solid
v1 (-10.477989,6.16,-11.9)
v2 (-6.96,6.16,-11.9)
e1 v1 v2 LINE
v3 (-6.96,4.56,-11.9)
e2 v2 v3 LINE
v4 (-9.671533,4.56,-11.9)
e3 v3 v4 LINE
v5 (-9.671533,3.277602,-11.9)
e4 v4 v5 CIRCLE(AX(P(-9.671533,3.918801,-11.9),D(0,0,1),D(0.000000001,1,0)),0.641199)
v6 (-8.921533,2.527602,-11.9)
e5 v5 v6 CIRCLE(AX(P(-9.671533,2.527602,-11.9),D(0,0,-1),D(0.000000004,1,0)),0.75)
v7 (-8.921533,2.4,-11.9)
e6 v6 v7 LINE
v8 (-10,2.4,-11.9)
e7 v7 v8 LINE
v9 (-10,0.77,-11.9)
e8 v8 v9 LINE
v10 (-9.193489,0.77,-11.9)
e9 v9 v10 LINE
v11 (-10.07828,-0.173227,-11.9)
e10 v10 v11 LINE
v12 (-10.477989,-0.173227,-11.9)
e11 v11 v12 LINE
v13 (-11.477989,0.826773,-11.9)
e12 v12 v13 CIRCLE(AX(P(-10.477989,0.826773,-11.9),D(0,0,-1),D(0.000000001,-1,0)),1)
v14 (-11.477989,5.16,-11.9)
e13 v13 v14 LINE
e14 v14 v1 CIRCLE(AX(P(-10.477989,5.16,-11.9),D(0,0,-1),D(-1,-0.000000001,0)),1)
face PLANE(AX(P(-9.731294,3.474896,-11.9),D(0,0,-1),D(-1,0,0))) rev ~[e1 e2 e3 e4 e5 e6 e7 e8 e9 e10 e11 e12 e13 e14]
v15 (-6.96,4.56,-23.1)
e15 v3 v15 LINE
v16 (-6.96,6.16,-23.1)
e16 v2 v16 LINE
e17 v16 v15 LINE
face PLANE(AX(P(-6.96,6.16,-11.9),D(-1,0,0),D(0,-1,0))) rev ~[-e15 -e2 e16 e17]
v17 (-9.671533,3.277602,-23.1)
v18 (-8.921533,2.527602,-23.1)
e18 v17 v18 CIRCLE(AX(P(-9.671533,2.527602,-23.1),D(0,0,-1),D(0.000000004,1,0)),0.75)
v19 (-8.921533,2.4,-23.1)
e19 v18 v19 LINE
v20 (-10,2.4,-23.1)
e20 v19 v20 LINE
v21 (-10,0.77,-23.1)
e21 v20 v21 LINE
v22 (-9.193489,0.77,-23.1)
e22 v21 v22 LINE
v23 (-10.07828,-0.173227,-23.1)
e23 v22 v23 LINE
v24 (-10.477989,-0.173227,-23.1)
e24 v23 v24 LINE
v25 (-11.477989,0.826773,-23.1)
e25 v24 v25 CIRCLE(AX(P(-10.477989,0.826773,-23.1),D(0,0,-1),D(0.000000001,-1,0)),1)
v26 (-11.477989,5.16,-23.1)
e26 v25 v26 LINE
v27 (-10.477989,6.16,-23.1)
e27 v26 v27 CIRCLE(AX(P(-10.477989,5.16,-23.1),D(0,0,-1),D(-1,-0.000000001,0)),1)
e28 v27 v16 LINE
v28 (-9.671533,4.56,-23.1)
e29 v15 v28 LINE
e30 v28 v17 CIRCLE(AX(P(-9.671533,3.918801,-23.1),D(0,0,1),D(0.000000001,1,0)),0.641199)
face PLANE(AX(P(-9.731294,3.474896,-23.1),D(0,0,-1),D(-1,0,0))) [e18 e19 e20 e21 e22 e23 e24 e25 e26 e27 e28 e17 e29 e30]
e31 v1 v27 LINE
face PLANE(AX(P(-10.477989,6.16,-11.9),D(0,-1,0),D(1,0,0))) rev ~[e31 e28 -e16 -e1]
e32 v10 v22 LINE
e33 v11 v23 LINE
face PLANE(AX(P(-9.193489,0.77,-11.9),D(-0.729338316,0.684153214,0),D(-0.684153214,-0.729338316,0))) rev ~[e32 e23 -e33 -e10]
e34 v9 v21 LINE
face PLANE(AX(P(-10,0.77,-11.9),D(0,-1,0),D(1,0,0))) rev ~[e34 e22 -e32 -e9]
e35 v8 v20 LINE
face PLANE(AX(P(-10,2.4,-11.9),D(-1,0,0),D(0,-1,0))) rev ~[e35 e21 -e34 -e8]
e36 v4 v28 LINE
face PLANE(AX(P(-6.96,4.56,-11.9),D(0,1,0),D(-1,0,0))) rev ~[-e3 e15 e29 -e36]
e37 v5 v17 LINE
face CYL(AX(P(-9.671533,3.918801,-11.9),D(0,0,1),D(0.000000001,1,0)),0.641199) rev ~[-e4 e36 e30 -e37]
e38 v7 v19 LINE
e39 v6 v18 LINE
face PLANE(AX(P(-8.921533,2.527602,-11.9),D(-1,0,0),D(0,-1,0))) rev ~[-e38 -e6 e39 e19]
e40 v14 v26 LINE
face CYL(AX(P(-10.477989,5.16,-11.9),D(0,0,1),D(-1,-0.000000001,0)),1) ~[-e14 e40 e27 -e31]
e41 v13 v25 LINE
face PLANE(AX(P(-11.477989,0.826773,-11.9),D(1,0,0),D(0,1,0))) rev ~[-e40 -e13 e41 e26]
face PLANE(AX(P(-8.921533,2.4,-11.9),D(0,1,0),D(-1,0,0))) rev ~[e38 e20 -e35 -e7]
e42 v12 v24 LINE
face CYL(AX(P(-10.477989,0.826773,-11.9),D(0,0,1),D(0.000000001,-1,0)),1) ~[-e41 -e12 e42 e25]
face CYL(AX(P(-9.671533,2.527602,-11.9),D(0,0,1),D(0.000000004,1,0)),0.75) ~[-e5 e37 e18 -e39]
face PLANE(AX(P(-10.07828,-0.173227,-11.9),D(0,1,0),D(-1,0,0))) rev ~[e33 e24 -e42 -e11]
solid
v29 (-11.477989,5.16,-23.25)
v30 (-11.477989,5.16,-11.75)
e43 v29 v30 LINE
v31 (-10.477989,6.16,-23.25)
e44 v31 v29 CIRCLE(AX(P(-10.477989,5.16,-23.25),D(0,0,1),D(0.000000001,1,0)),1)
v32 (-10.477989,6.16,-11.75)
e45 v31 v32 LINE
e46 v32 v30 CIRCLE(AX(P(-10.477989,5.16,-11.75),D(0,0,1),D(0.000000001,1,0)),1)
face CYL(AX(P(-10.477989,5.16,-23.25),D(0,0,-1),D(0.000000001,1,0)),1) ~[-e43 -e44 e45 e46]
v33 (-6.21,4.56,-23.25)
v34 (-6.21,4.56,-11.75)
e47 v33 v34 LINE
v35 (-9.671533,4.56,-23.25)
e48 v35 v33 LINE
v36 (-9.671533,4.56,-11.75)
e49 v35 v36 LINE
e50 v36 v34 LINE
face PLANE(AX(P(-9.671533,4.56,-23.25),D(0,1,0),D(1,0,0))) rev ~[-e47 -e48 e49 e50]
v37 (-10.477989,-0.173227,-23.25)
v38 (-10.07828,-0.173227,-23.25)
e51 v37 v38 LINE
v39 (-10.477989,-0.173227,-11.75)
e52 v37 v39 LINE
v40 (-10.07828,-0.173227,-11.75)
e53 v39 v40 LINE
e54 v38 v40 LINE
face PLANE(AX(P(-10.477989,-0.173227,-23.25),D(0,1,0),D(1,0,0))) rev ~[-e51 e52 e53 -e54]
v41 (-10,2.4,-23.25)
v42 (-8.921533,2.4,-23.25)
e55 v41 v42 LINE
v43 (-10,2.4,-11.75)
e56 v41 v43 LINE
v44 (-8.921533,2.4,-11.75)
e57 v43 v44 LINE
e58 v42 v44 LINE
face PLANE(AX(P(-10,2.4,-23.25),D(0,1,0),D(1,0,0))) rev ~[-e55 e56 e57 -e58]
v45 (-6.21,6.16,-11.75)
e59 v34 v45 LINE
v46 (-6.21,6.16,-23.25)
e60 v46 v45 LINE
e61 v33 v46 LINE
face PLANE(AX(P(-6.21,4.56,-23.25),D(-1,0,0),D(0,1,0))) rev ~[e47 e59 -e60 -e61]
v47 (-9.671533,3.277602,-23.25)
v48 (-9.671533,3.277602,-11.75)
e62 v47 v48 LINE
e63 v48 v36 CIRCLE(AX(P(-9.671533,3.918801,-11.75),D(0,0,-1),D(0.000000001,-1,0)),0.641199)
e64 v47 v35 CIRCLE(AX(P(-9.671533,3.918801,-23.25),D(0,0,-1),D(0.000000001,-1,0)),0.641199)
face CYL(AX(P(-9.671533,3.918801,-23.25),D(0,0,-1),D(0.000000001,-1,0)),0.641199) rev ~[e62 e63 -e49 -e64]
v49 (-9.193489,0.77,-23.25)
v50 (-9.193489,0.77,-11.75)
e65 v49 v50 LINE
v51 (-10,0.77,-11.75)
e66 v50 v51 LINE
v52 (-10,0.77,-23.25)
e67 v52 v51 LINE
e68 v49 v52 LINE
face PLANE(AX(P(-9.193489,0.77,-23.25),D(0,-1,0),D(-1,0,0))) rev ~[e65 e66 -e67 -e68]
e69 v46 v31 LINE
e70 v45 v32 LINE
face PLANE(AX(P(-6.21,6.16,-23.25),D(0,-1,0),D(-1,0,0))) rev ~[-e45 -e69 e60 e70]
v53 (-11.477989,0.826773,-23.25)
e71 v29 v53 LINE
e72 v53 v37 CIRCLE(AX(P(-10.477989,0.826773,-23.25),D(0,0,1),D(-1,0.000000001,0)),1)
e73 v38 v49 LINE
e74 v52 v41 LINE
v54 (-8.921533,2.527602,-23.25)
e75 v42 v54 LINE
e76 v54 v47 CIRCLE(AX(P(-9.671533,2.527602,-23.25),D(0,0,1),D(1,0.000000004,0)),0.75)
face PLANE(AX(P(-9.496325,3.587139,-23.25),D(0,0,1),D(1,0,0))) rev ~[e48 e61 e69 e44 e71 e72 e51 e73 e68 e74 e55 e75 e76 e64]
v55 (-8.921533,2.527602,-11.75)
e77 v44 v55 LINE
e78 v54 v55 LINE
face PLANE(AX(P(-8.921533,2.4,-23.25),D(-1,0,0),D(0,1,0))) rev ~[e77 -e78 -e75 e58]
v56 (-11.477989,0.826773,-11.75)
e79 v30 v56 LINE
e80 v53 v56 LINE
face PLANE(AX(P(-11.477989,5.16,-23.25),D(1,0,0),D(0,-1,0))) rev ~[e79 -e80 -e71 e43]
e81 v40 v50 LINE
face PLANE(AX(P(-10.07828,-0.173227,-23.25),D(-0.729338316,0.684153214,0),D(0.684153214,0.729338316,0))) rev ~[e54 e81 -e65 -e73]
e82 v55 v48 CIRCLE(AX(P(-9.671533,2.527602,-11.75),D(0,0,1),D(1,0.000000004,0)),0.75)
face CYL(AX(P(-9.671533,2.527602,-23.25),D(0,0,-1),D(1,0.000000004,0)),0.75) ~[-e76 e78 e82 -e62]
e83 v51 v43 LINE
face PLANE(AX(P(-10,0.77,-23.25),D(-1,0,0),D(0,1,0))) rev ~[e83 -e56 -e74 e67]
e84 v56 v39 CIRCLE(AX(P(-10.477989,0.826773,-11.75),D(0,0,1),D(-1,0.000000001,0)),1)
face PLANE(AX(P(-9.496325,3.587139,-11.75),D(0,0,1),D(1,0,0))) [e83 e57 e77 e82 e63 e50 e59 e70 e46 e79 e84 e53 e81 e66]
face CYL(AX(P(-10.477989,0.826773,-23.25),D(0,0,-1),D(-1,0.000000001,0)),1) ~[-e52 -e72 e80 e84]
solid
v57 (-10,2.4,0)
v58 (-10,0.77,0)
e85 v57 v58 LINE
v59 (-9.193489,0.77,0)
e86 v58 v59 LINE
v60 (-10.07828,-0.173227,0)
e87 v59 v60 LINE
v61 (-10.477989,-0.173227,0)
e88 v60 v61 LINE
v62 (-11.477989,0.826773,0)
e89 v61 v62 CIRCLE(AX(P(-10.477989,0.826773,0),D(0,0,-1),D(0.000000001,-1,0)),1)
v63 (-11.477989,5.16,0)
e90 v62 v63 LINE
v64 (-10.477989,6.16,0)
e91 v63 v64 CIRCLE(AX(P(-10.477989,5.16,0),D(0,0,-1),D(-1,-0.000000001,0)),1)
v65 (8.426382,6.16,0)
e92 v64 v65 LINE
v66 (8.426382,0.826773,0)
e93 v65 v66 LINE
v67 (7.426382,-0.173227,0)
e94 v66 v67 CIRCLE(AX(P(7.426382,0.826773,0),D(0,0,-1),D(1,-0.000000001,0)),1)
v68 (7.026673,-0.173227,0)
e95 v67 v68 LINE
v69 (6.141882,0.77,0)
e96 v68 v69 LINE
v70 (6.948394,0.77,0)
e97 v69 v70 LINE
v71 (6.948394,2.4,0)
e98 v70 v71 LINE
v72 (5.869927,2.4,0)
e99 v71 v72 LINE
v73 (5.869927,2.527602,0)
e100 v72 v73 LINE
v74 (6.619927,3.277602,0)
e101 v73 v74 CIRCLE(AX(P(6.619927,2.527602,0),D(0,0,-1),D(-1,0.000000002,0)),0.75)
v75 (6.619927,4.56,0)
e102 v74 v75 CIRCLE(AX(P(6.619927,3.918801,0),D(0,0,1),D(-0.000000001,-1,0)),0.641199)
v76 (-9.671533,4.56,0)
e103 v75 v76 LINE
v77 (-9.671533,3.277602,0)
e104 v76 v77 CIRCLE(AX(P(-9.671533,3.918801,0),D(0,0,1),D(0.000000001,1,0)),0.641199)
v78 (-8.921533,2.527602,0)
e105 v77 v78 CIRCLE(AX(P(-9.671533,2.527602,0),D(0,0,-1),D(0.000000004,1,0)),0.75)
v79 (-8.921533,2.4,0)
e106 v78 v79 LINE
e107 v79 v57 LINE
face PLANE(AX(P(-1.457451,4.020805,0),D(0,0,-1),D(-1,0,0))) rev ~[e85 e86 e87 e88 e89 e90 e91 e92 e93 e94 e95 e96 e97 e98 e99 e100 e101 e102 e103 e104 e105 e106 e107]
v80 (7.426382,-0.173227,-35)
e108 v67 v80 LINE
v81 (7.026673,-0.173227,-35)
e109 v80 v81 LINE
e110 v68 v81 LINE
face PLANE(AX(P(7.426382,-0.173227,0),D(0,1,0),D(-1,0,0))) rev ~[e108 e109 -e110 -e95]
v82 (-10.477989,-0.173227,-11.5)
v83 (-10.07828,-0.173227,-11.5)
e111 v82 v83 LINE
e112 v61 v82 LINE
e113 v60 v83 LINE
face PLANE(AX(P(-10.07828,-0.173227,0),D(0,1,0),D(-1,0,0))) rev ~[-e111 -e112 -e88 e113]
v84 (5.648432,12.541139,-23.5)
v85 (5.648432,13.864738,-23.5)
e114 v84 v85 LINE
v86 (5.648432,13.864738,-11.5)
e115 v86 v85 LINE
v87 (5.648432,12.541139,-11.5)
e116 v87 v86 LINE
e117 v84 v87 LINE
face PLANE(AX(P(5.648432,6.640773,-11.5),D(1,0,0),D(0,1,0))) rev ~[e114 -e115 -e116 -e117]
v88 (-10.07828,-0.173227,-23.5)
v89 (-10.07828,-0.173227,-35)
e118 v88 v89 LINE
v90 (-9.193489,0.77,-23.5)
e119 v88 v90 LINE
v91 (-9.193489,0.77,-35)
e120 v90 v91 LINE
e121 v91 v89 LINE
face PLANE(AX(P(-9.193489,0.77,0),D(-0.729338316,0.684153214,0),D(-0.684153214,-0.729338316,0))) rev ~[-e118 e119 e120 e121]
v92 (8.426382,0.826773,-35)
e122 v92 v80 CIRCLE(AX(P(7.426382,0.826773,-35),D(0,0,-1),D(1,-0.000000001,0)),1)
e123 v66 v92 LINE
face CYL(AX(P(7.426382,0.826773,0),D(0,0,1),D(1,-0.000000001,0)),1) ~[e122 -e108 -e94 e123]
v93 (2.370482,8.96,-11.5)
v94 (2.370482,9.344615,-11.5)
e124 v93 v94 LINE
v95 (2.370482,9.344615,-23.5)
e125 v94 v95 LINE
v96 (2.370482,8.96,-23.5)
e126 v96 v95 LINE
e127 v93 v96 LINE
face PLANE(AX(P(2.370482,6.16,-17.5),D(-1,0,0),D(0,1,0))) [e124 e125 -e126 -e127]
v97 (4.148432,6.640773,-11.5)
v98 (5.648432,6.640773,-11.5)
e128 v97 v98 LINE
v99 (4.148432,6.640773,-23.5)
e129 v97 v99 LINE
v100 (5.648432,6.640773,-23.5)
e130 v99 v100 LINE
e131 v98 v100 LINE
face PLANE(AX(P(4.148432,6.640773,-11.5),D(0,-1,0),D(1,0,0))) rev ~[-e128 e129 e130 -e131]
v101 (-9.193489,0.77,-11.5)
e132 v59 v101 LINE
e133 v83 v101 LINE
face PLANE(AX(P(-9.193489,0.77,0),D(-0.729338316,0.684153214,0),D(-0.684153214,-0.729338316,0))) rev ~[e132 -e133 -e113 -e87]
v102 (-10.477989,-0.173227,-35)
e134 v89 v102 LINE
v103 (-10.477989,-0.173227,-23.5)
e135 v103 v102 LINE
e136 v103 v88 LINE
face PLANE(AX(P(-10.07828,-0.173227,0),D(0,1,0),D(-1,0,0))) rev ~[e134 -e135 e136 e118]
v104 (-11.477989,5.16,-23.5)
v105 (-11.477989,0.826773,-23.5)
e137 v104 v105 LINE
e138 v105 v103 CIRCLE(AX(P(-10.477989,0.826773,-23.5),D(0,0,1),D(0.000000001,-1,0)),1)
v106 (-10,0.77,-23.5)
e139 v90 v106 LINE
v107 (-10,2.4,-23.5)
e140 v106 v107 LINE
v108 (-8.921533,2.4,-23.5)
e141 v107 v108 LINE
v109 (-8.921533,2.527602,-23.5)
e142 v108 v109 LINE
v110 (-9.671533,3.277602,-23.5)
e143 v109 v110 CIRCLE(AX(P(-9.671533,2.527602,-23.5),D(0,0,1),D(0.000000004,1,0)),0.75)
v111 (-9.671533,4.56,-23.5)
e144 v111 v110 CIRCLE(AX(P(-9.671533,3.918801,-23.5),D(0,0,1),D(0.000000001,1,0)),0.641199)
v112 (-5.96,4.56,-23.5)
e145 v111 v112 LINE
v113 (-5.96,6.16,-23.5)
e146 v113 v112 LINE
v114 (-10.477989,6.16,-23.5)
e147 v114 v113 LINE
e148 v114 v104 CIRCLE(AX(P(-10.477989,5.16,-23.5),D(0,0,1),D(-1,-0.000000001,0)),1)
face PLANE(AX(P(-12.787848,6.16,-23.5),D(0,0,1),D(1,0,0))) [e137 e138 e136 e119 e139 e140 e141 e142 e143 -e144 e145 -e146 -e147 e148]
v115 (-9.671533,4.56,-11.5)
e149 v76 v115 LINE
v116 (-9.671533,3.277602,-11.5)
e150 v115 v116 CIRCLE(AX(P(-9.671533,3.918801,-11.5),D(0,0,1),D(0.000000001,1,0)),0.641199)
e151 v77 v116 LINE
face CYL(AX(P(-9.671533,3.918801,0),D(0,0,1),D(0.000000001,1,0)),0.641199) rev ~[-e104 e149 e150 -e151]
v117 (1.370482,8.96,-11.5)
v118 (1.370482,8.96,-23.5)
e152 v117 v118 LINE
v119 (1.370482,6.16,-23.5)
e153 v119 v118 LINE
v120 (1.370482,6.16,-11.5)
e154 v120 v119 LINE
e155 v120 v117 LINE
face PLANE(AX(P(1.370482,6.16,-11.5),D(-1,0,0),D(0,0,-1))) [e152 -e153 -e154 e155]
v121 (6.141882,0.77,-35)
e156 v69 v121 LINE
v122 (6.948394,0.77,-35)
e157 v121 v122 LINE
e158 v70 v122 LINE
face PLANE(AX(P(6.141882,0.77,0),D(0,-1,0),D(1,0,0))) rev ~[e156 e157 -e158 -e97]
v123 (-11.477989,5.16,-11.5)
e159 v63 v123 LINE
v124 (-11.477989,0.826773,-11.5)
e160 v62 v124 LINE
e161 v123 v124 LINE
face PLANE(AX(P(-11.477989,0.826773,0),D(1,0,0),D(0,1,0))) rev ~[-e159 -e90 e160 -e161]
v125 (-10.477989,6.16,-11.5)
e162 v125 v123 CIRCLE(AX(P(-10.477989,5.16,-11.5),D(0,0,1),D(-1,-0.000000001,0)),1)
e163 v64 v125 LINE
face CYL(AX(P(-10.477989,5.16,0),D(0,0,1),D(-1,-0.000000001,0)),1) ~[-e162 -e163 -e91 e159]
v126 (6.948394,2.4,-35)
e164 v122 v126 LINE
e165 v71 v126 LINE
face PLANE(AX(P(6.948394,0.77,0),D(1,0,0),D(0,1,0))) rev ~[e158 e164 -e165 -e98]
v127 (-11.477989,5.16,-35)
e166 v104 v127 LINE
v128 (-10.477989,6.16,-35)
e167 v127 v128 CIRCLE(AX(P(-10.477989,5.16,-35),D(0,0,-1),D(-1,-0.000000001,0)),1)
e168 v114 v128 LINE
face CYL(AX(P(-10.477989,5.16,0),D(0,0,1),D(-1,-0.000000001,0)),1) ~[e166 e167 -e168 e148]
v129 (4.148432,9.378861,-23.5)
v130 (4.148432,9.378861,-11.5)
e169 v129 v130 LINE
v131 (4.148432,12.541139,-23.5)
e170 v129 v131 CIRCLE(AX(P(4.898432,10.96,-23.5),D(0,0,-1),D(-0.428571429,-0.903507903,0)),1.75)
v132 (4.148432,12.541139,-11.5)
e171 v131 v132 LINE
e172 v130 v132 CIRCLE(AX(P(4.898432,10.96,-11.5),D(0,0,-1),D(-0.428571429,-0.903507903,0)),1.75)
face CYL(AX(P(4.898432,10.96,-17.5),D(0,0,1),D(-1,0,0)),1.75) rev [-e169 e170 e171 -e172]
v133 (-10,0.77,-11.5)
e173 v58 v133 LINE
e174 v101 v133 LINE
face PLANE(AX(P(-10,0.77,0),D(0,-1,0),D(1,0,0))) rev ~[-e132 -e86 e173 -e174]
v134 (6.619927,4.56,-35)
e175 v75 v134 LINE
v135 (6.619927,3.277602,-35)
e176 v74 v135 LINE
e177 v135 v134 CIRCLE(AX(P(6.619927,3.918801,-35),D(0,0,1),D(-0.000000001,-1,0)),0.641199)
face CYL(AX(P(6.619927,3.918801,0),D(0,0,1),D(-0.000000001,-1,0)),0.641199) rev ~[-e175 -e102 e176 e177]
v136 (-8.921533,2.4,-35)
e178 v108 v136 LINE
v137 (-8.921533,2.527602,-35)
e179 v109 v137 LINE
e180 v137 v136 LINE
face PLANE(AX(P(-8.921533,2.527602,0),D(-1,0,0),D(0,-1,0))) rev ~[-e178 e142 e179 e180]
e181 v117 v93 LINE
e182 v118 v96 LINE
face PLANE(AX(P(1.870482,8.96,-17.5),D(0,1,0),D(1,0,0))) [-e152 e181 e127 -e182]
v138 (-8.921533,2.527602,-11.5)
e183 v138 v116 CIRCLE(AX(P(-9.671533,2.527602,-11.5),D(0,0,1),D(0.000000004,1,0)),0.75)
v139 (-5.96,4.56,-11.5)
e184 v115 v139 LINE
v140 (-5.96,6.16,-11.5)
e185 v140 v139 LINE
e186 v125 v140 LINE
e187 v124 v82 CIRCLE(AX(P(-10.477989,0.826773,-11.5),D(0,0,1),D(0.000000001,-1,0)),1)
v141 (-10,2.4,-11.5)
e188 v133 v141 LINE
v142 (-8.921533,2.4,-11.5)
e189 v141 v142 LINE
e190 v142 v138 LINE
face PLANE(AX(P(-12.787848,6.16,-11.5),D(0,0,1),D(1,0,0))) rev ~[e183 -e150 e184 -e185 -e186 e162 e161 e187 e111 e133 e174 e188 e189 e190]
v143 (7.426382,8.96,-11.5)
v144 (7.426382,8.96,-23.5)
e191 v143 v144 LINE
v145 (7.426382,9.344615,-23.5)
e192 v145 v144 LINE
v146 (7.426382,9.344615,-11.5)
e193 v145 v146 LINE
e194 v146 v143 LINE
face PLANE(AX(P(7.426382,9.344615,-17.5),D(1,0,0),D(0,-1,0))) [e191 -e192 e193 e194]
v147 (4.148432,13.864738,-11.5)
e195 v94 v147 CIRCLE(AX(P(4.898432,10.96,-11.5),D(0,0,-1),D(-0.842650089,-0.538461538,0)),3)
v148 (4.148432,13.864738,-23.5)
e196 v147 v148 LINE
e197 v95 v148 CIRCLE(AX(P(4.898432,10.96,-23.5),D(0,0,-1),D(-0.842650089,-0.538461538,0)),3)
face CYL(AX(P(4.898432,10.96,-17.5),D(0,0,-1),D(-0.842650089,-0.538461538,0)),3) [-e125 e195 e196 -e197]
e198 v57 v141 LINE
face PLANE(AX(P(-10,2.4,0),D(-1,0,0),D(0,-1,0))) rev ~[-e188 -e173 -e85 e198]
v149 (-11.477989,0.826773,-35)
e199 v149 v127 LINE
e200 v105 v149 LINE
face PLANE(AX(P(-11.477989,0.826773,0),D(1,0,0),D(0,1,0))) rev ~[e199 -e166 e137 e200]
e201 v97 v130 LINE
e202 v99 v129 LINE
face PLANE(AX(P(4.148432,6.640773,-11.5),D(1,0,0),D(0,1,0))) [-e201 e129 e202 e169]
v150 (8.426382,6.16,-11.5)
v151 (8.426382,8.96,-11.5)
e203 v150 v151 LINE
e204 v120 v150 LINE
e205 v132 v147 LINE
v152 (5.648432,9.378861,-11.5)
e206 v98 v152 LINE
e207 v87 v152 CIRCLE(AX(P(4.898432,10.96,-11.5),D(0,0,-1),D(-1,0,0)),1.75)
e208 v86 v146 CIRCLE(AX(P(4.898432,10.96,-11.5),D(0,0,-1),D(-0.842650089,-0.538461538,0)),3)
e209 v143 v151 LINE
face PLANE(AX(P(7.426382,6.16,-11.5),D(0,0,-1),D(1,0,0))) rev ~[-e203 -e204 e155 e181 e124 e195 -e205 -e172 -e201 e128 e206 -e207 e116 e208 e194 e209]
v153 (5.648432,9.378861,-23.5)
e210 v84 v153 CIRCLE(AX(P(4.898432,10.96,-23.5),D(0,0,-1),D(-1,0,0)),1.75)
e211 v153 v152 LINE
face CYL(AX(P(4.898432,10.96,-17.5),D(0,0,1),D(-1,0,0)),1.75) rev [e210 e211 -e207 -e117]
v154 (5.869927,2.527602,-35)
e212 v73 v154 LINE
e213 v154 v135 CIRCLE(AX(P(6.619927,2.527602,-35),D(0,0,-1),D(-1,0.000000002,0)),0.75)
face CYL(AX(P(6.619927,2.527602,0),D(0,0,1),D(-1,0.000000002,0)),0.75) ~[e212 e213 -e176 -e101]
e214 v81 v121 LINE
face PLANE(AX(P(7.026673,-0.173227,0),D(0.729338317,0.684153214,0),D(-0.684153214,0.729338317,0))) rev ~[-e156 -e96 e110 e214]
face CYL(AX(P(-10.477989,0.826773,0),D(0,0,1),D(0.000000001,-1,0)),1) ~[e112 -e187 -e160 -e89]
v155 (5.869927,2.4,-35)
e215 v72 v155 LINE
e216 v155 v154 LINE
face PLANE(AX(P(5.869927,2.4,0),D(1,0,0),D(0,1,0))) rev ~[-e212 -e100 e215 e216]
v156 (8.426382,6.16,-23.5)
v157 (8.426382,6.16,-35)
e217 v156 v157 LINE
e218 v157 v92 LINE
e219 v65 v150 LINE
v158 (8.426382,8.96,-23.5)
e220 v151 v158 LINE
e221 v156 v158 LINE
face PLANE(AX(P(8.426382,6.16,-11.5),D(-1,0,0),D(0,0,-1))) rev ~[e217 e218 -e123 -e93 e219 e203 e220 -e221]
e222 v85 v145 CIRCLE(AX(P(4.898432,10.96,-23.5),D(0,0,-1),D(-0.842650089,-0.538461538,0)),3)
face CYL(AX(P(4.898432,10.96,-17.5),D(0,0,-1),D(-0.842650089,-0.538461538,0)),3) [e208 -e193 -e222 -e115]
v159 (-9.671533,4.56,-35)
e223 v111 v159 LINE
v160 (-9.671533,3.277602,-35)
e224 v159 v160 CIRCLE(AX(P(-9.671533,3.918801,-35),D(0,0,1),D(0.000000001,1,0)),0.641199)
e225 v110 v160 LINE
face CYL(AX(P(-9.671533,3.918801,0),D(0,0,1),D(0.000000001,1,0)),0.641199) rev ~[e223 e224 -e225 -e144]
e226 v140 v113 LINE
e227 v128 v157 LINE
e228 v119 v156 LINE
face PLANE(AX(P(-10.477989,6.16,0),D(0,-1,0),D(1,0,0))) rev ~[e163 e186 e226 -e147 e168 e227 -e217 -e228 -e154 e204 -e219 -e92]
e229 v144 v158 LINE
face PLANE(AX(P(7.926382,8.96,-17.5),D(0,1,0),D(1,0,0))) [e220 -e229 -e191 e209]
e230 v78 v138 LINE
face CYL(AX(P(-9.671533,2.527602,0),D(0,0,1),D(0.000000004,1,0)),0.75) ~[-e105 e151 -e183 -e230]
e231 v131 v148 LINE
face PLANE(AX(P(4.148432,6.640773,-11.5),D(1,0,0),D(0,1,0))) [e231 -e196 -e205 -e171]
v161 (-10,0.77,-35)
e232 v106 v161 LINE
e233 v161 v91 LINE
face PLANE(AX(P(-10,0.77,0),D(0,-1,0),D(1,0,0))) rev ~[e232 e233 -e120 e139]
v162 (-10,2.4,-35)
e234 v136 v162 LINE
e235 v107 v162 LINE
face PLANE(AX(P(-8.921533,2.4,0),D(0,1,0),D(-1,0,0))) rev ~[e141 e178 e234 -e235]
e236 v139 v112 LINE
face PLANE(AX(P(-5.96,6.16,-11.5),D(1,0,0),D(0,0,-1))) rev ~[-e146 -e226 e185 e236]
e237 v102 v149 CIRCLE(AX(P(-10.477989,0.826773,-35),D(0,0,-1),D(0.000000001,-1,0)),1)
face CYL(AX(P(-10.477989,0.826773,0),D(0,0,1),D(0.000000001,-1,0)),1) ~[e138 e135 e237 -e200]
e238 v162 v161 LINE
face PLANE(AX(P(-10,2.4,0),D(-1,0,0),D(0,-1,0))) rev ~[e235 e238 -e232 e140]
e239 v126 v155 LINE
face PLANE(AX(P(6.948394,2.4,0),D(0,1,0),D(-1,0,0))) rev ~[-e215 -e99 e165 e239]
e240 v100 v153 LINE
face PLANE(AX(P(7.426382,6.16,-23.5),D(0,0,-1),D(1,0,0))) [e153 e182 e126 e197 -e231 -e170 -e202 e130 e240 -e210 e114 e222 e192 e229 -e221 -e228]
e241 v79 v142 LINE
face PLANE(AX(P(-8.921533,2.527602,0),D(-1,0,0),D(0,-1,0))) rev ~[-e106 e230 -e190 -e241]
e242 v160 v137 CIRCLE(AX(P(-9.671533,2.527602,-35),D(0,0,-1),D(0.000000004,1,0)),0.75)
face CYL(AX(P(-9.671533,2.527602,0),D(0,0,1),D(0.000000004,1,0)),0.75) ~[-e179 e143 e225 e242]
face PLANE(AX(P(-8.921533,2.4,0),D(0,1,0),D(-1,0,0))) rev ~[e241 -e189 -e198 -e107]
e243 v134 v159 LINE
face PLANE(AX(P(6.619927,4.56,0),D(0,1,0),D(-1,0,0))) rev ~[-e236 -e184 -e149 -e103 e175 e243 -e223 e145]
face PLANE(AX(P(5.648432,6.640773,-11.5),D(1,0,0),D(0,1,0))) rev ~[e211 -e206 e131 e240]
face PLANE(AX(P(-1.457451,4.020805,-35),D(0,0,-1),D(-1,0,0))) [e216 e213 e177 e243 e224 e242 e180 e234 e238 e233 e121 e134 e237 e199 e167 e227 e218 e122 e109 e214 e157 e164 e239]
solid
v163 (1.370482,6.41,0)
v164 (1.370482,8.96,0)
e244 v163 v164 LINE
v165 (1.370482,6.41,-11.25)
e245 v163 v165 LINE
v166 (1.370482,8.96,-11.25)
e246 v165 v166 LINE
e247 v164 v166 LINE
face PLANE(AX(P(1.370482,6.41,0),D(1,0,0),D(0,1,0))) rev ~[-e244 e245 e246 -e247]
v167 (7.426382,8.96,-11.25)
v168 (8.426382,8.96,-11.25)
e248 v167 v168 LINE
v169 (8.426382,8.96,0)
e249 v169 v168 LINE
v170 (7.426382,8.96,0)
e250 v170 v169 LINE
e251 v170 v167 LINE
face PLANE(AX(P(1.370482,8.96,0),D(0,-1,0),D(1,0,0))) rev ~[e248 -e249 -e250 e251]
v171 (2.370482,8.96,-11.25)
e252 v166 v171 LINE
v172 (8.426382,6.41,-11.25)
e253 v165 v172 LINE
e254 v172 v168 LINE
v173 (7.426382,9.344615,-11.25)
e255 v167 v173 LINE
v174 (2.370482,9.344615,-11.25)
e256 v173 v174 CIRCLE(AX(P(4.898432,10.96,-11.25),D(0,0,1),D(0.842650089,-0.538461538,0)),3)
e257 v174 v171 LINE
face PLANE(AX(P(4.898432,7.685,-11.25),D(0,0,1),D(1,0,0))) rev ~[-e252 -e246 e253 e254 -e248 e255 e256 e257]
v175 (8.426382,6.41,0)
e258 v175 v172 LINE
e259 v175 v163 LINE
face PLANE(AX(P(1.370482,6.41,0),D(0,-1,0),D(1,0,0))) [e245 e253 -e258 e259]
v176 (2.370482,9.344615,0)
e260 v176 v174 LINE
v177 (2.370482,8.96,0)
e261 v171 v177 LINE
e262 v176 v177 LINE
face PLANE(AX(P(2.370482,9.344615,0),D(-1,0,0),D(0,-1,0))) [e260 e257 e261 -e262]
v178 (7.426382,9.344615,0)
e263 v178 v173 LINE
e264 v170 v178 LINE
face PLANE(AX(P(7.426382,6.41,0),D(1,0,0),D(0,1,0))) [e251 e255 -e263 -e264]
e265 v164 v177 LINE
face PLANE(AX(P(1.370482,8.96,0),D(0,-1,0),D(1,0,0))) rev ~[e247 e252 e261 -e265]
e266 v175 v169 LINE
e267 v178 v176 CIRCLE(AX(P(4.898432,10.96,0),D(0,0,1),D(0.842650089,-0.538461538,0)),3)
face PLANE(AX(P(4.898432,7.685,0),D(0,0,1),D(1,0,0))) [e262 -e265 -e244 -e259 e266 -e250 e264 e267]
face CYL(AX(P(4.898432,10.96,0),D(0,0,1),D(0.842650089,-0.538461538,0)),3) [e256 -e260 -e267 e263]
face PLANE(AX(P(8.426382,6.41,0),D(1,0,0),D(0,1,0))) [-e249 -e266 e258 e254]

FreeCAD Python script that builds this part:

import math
import FreeCAD as App
import Part
import Sketcher
from FreeCAD import Vector


def add_polygon(sketch, points):
    """Adds a closed chain of lines whose ends are joined by coincident constraints."""
    first, n = sketch.GeometryCount, len(points)
    for a, b in zip(points, points[1:] + points[:1]):
        sketch.addGeometry(Part.LineSegment(App.Vector(*a, 0), App.Vector(*b, 0)), False)
    for i in range(n):
        sketch.addConstraint(Sketcher.Constraint("Coincident", first + i, 2, first + (i + 1) % n, 1))

doc = App.newDocument("Part")
params = doc.addObject("Spreadsheet::Sheet", "Params")
for row, (alias, value) in enumerate([
    ("sketch1_radius", "1 mm"),
    ("sketch1_radius2", "0.75 mm"),
    ("sketch1_height", "1.63 mm"),
    ("pad1_length", "35 mm"),
    ("sketch2_radius", "3 mm"),
    ("sketch2_diameter", "3.5 mm"),
    ("pad2_length", "12 mm"),
    ("sketch3_height", "12 mm"),
    ("sketch4_width", "1 mm"),
    ("sketch4_height", "12 mm"),
    ("pad3_length", "2.8 mm"),
    ("sketch5_width", "1.5 mm"),
    ("pocket2_length", "12 mm"),
    ("sketch6_radius", "3 mm"),
    ("pad4_length", "11.25 mm"),
    ("sketch7_height", "2.55 mm"),
    ("pad5_length", "11.25 mm"),
    ("sketch8_radius", "1 mm"),
    ("sketch8_radius2", "0.75 mm"),
    ("sketch8_height", "1.6 mm"),
    ("sketch8_height2", "1.63 mm"),
    ("pad6_length", "11.2 mm"),
    ("sketch9_radius", "1 mm"),
    ("sketch9_radius2", "0.75 mm"),
    ("sketch9_height", "1.6 mm"),
    ("sketch9_height2", "1.63 mm"),
    ("pad7_length", "11.5 mm"),
], start=1):
    params.set(f"A{row}", alias)
    params.set(f"B{row}", "=" + value)
    params.setAlias(f"B{row}", alias)

body = doc.addObject("PartDesign::Body", "Body")

# Sketch on XY plane
sketch1 = body.newObject("Sketcher::SketchObject", "Sketch")
sketch1.AttachmentSupport = (doc.getObject("XY_Plane"), [""])
sketch1.MapMode = "FlatFace"
sketch1.addGeometry([
    Part.LineSegment(Vector(-9.19, 0.77, 0), Vector(-10, 0.77, 0)),  # 0
    Part.LineSegment(Vector(-10, 0.77, 0), Vector(-10, 2.4, 0)),  # 1
    Part.LineSegment(Vector(-10, 2.4, 0), Vector(-8.92, 2.4, 0)),  # 2
    Part.LineSegment(Vector(-8.92, 2.4, 0), Vector(-8.92, 2.53, 0)),  # 3
    Part.ArcOfCircle(Part.Circle(Vector(-9.67, 2.53, 0), Vector(0, 0, 1), 0.75), math.radians(0), math.radians(90)),  # 4
    Part.ArcOfCircle(Part.Circle(Vector(-9.67, 3.92, 0), Vector(0, 0, 1), 0.64), math.radians(90), math.radians(270)),  # 5
    Part.LineSegment(Vector(-9.67, 4.56, 0), Vector(6.62, 4.56, 0)),  # 6
    Part.ArcOfCircle(Part.Circle(Vector(6.62, 3.92, 0), Vector(0, 0, 1), 0.64), math.radians(-90), math.radians(90)),  # 7
    Part.ArcOfCircle(Part.Circle(Vector(6.62, 2.53, 0), Vector(0, 0, 1), 0.75), math.radians(90), math.radians(180)),  # 8
    Part.LineSegment(Vector(5.87, 2.53, 0), Vector(5.87, 2.4, 0)),  # 9
    Part.LineSegment(Vector(5.87, 2.4, 0), Vector(6.95, 2.4, 0)),  # 10
    Part.LineSegment(Vector(6.95, 2.4, 0), Vector(6.95, 0.77, 0)),  # 11
    Part.LineSegment(Vector(6.95, 0.77, 0), Vector(6.14, 0.77, 0)),  # 12
    Part.LineSegment(Vector(6.14, 0.77, 0), Vector(7.03, -0.17, 0)),  # 13
    Part.LineSegment(Vector(7.03, -0.17, 0), Vector(7.43, -0.17, 0)),  # 14
    Part.ArcOfCircle(Part.Circle(Vector(7.43, 0.83, 0), Vector(0, 0, 1), 1), math.radians(-90), math.radians(0)),  # 15
    Part.LineSegment(Vector(8.43, 0.83, 0), Vector(8.43, 6.16, 0)),  # 16
    Part.LineSegment(Vector(8.43, 6.16, 0), Vector(-10.48, 6.16, 0)),  # 17
    Part.ArcOfCircle(Part.Circle(Vector(-10.48, 5.16, 0), Vector(0, 0, 1), 1), math.radians(90), math.radians(180)),  # 18
    Part.LineSegment(Vector(-11.48, 5.16, 0), Vector(-11.48, 0.83, 0)),  # 19
    Part.ArcOfCircle(Part.Circle(Vector(-10.48, 0.83, 0), Vector(0, 0, 1), 1), math.radians(180), math.radians(270)),  # 20
    Part.LineSegment(Vector(-10.48, -0.17, 0), Vector(-10.08, -0.17, 0)),  # 21
    Part.LineSegment(Vector(-10.08, -0.17, 0), Vector(-9.19, 0.77, 0)),  # 22
], False)
sketch1.addConstraint([
    Sketcher.Constraint("Coincident", 0, 2, 1, 1),
    Sketcher.Constraint("Coincident", 1, 2, 2, 1),
    Sketcher.Constraint("Coincident", 2, 2, 3, 1),
    Sketcher.Constraint("Tangent", 3, 2, 4, 1),
    Sketcher.Constraint("Tangent", 4, 2, 5, 2),
    Sketcher.Constraint("Tangent", 5, 1, 6, 1),
    Sketcher.Constraint("Tangent", 6, 2, 7, 2),
    Sketcher.Constraint("Tangent", 7, 1, 8, 1),
    Sketcher.Constraint("Tangent", 8, 2, 9, 1),
    Sketcher.Constraint("Coincident", 9, 2, 10, 1),
    Sketcher.Constraint("Coincident", 10, 2, 11, 1),
    Sketcher.Constraint("Coincident", 11, 2, 12, 1),
    Sketcher.Constraint("Coincident", 12, 2, 13, 1),
    Sketcher.Constraint("Coincident", 13, 2, 14, 1),
    Sketcher.Constraint("Tangent", 14, 2, 15, 1),
    Sketcher.Constraint("Tangent", 15, 2, 16, 1),
    Sketcher.Constraint("Coincident", 16, 2, 17, 1),
    Sketcher.Constraint("Tangent", 17, 2, 18, 1),
    Sketcher.Constraint("Tangent", 18, 2, 19, 1),
    Sketcher.Constraint("Tangent", 19, 2, 20, 1),
    Sketcher.Constraint("Tangent", 20, 2, 21, 1),
    Sketcher.Constraint("Coincident", 21, 2, 22, 1),
    Sketcher.Constraint("Coincident", 22, 2, 0, 1),
    Sketcher.Constraint("Horizontal", 0),
    Sketcher.Constraint("Vertical", 1),
    Sketcher.Constraint("Horizontal", 2),
    Sketcher.Constraint("Vertical", 3),
    Sketcher.Constraint("Horizontal", 6),
    Sketcher.Constraint("Vertical", 9),
    Sketcher.Constraint("Horizontal", 10),
    Sketcher.Constraint("Vertical", 11),
    Sketcher.Constraint("Horizontal", 12),
    Sketcher.Constraint("Horizontal", 14),
    Sketcher.Constraint("Vertical", 16),
    Sketcher.Constraint("Horizontal", 17),
    Sketcher.Constraint("Vertical", 19),
    Sketcher.Constraint("Horizontal", 21),
    Sketcher.Constraint("Equal", 5, 7),
    Sketcher.Constraint("Equal", 4, 8),
    Sketcher.Constraint("Equal", 15, 18),
    Sketcher.Constraint("Equal", 18, 20),
    Sketcher.Constraint("Horizontal", 15, 3, 20, 3),
    Sketcher.Constraint("Horizontal", 2, 2, 9, 2),
    Sketcher.Constraint("Horizontal", 0, 2, 11, 2),
    Sketcher.Constraint("Vertical", 4, 3, 5, 3),
    Sketcher.Constraint("Vertical", 7, 3, 8, 3),
    Sketcher.Constraint("Equal", 2, 10),
    Sketcher.Constraint("Equal", 0, 12),
    Sketcher.Constraint("Equal", 14, 21),
    Sketcher.Constraint("Equal", 13, 22),
    Sketcher.Constraint("Radius", 15, 1.0),
    Sketcher.Constraint("Radius", 4, 0.75),
    Sketcher.Constraint("DistanceX", 0, 2, -1, 1, 10.0),
    Sketcher.Constraint("DistanceY", 1, 1, 1, 2, 1.63),
    Sketcher.Constraint("DistanceY", -1, 1, 1, 2, 2.4),
    Sketcher.Constraint("Radius", 5, 0.641199),
    Sketcher.Constraint("DistanceY", 5, 1, 18, 3, 0.6),
    Sketcher.Constraint("DistanceY", -1, 1, 18, 3, 5.16),
    Sketcher.Constraint("DistanceX", 0, 2, 0, 1, 0.806511),
    Sketcher.Constraint("DistanceX", 6, 1, 6, 2, 16.29146),
    Sketcher.Constraint("DistanceX", 14, 1, 14, 2, 0.399709),
    Sketcher.Constraint("DistanceX", 17, 2, 17, 1, 18.904371),
    Sketcher.Constraint("DistanceX", 12, 2, 15, 3, 1.2845),
    Sketcher.Constraint("DistanceY", 16, 1, 16, 2, 5.333227),
])
sketch1.setExpression("Constraints[50]", "Params.sketch1_radius")
sketch1.setExpression("Constraints[51]", "Params.sketch1_radius2")
sketch1.setExpression("Constraints[53]", "Params.sketch1_height")
pad1 = body.newObject("PartDesign::Pad", "Pad")
pad1.Profile = sketch1
pad1.setExpression("Length", "Params.pad1_length")
pad1.Reversed = True

# Sketch on XY plane
sketch2 = body.newObject("Sketcher::SketchObject", "Sketch001")
sketch2.AttachmentSupport = (doc.getObject("XY_Plane"), [""])
sketch2.MapMode = "FlatFace"
sketch2.AttachmentOffset = App.Placement(Vector(0, 0, -17.5), App.Rotation())
sketch2.addGeometry([
    Part.LineSegment(Vector(7.4, 6.2, 0), Vector(2.4, 6.2, 0)),  # 0
    Part.LineSegment(Vector(2.4, 6.2, 0), Vector(2.4, 9.3, 0)),  # 1
    Part.ArcOfCircle(Part.Circle(Vector(4.9, 11, 0), Vector(0, 0, 1), 3), math.radians(-33), math.radians(213)),  # 2
    Part.LineSegment(Vector(7.4, 9.3, 0), Vector(7.4, 6.2, 0)),  # 3
    Part.Circle(Vector(4.9, 11, 0), Vector(0, 0, 1), 1.8),  # 4
], False)
sketch2.addConstraint([
    Sketcher.Constraint("Coincident", 0, 2, 1, 1),
    Sketcher.Constraint("Coincident", 1, 2, 2, 2),
    Sketcher.Constraint("Coincident", 2, 1, 3, 1),
    Sketcher.Constraint("Coincident", 3, 2, 0, 1),
    Sketcher.Constraint("Horizontal", 0),
    Sketcher.Constraint("Vertical", 1),
    Sketcher.Constraint("Vertical", 3),
    Sketcher.Constraint("Coincident", 4, 3, 2, 3),
    Sketcher.Constraint("Horizontal", 1, 2, 2, 1),
    Sketcher.Constraint("Radius", 2, 3.0),
    Sketcher.Constraint("Diameter", 4, 3.5),
    Sketcher.Constraint("DistanceY", 0, 2, 2, 3, 4.8),
    Sketcher.Constraint("DistanceY", -1, 1, 2, 3, 10.96),
    Sketcher.Constraint("DistanceX", 0, 2, 0, 1, 5.055901),
    Sketcher.Constraint("DistanceX", -1, 1, 0, 2, 2.370482),
])
sketch2.setExpression("Constraints[9]", "Params.sketch2_radius")
sketch2.setExpression("Constraints[10]", "Params.sketch2_diameter")
pad2 = body.newObject("PartDesign::Pad", "Pad001")
pad2.Profile = sketch2
pad2.setExpression("Length", "Params.pad2_length")
pad2.Midplane = True

# Sketch on XZ plane
sketch3 = body.newObject("Sketcher::SketchObject", "Sketch002")
sketch3.AttachmentSupport = (doc.getObject("XZ_Plane"), [""])
sketch3.MapMode = "FlatFace"
sketch3.AttachmentOffset = App.Placement(Vector(0, 0, -6.16), App.Rotation())
add_polygon(sketch3, [(-13, -24), (-13, -12), (-6, -12), (-6, -24)])  # lines 0-3
sketch3.addConstraint([
    Sketcher.Constraint("Vertical", 0),
    Sketcher.Constraint("Horizontal", 1),
    Sketcher.Constraint("Vertical", 2),
    Sketcher.Constraint("Horizontal", 3),
    Sketcher.Constraint("DistanceY", 0, 1, 0, 2, 12.0),
    Sketcher.Constraint("DistanceY", 0, 2, -1, 1, 11.5),
    Sketcher.Constraint("DistanceX", 1, 2, -1, 1, 5.96),
    Sketcher.Constraint("DistanceX", 1, 1, 1, 2, 6.827848),
])
sketch3.setExpression("Constraints[8]", "Params.sketch3_height")
pocket1 = body.newObject("PartDesign::Pocket", "Pocket")
pocket1.Profile = sketch3
pocket1.Type = "ThroughAll"
pocket1.Reversed = True

# Sketch on XZ plane
sketch4 = body.newObject("Sketcher::SketchObject", "Sketch003")
sketch4.AttachmentSupport = (doc.getObject("XZ_Plane"), [""])
sketch4.MapMode = "FlatFace"
sketch4.AttachmentOffset = App.Placement(Vector(0, 0, -6.16), App.Rotation())
add_polygon(sketch4, [(7.4, -23.5), (7.4, -11.5), (8.4, -11.5), (8.4, -23.5)])  # lines 0-3
add_polygon(sketch4, [(1.4, -23.5), (1.4, -11.5), (2.4, -11.5), (2.4, -23.5)])  # lines 4-7
sketch4.addConstraint([
    Sketcher.Constraint("Vertical", 0),
    Sketcher.Constraint("Horizontal", 1),
    Sketcher.Constraint("Vertical", 2),
    Sketcher.Constraint("Horizontal", 3),
    Sketcher.Constraint("Vertical", 4),
    Sketcher.Constraint("Horizontal", 5),
    Sketcher.Constraint("Vertical", 6),
    Sketcher.Constraint("Horizontal", 7),
    Sketcher.Constraint("Horizontal", 1, 2, 4, 2),
    Sketcher.Constraint("Horizontal", 3, 2, 6, 2),
    Sketcher.Constraint("Equal", 3, 5),
    Sketcher.Constraint("DistanceX", 1, 1, 1, 2, 1.0),
    Sketcher.Constraint("DistanceY", 0, 1, 0, 2, 12.0),
    Sketcher.Constraint("DistanceY", 0, 2, -1, 1, 11.5),
    Sketcher.Constraint("DistanceX", 4, 2, 0, 2, 6.055901),
    Sketcher.Constraint("DistanceX", -1, 1, 4, 2, 1.370482),
])
sketch4.setExpression("Constraints[19]", "Params.sketch4_width")
sketch4.setExpression("Constraints[20]", "Params.sketch4_height")
pad3 = body.newObject("PartDesign::Pad", "Pad002")
pad3.Profile = sketch4
pad3.setExpression("Length", "Params.pad3_length")
pad3.Reversed = True

# Sketch on XY plane
sketch5 = body.newObject("Sketcher::SketchObject", "Sketch004")
sketch5.AttachmentSupport = (doc.getObject("XY_Plane"), [""])
sketch5.MapMode = "FlatFace"
sketch5.AttachmentOffset = App.Placement(Vector(0, 0, -11.5), App.Rotation())
add_polygon(sketch5, [(4.1, 22.4), (4.1, 6.6), (5.6, 6.6), (5.6, 22.4)])  # lines 0-3
sketch5.addConstraint([
    Sketcher.Constraint("Vertical", 0),
    Sketcher.Constraint("Horizontal", 1),
    Sketcher.Constraint("Vertical", 2),
    Sketcher.Constraint("Horizontal", 3),
    Sketcher.Constraint("DistanceX", 1, 1, 1, 2, 1.5),
    Sketcher.Constraint("DistanceY", 0, 2, 0, 1, 15.80767),
    Sketcher.Constraint("DistanceX", -1, 1, 0, 2, 4.148432),
    Sketcher.Constraint("DistanceY", -1, 1, 0, 2, 6.640773),
])
sketch5.setExpression("Constraints[8]", "Params.sketch5_width")
pocket2 = body.newObject("PartDesign::Pocket", "Pocket001")
pocket2.Profile = sketch5
pocket2.setExpression("Length", "Params.pocket2_length")
body2 = doc.addObject("PartDesign::Body", "Body001")

# Sketch on XY plane
sketch6 = body2.newObject("Sketcher::SketchObject", "Sketch005")
sketch6.AttachmentSupport = (doc.getObject("XY_Plane001"), [""])
sketch6.MapMode = "FlatFace"
sketch6.addGeometry([
    Part.LineSegment(Vector(7.4, 6.4, 0), Vector(7.4, 9.3, 0)),
    Part.ArcOfCircle(Part.Circle(Vector(4.9, 11, 0), Vector(0, 0, 1), 3), math.radians(-33), math.radians(213)),
    Part.LineSegment(Vector(2.4, 9.3, 0), Vector(2.4, 6.4, 0)),
    Part.LineSegment(Vector(2.4, 6.4, 0), Vector(7.4, 6.4, 0)),
], False)
sketch6.addConstraint([
    Sketcher.Constraint("Coincident", 0, 2, 1, 1),
    Sketcher.Constraint("Coincident", 1, 2, 2, 1),
    Sketcher.Constraint("Coincident", 2, 2, 3, 1),
    Sketcher.Constraint("Coincident", 3, 2, 0, 1),
    Sketcher.Constraint("Vertical", 0),
    Sketcher.Constraint("Vertical", 2),
    Sketcher.Constraint("Horizontal", 3),
    Sketcher.Constraint("Horizontal", 0, 2, 1, 2),
    Sketcher.Constraint("Radius", 1, 3.0),
    Sketcher.Constraint("DistanceY", -1, 1, 1, 3, 10.96),
    Sketcher.Constraint("DistanceY", -1, 1, 2, 2, 6.41),
    Sketcher.Constraint("DistanceX", 3, 1, 3, 2, 5.055901),
    Sketcher.Constraint("DistanceX", -1, 1, 1, 2, 2.370482),
])
sketch6.setExpression("Constraints[8]", "Params.sketch6_radius")
pad4 = body2.newObject("PartDesign::Pad", "Pad003")
pad4.Profile = sketch6
pad4.setExpression("Length", "Params.pad4_length")
pad4.Reversed = True

# Sketch on XY plane
sketch7 = body2.newObject("Sketcher::SketchObject", "Sketch006")
sketch7.AttachmentSupport = (doc.getObject("XY_Plane001"), [""])
sketch7.MapMode = "FlatFace"
add_polygon(sketch7, [(1.4, 9), (1.4, 6.4), (8.4, 6.4), (8.4, 9)])  # lines 0-3
sketch7.addConstraint([
    Sketcher.Constraint("Vertical", 0),
    Sketcher.Constraint("Horizontal", 1),
    Sketcher.Constraint("Vertical", 2),
    Sketcher.Constraint("Horizontal", 3),
    Sketcher.Constraint("DistanceY", 0, 2, 0, 1, 2.55),
    Sketcher.Constraint("DistanceY", -1, 1, 0, 2, 6.41),
    Sketcher.Constraint("DistanceX", 1, 1, 1, 2, 7.055901),
    Sketcher.Constraint("DistanceX", -1, 1, 0, 2, 1.370482),
])
sketch7.setExpression("Constraints[8]", "Params.sketch7_height")
pad5 = body2.newObject("PartDesign::Pad", "Pad004")
pad5.Profile = sketch7
pad5.setExpression("Length", "Params.pad5_length")
pad5.Reversed = True
body3 = doc.addObject("PartDesign::Body", "Body002")

# Sketch on XY plane
sketch8 = body3.newObject("Sketcher::SketchObject", "Sketch007")
sketch8.AttachmentSupport = (doc.getObject("XY_Plane002"), [""])
sketch8.MapMode = "FlatFace"
sketch8.AttachmentOffset = App.Placement(Vector(0, 0, -11.9), App.Rotation())
sketch8.addGeometry([
    Part.LineSegment(Vector(-6.96, 4.56, 0), Vector(-6.96, 6.16, 0)),  # 0
    Part.LineSegment(Vector(-6.96, 6.16, 0), Vector(-10.48, 6.16, 0)),  # 1
    Part.ArcOfCircle(Part.Circle(Vector(-10.48, 5.16, 0), Vector(0, 0, 1), 1), math.radians(90), math.radians(180)),  # 2
    Part.LineSegment(Vector(-11.48, 5.16, 0), Vector(-11.48, 0.83, 0)),  # 3
    Part.ArcOfCircle(Part.Circle(Vector(-10.48, 0.83, 0), Vector(0, 0, 1), 1), math.radians(180), math.radians(270)),  # 4
    Part.LineSegment(Vector(-10.48, -0.17, 0), Vector(-10.08, -0.17, 0)),  # 5
    Part.LineSegment(Vector(-10.08, -0.17, 0), Vector(-9.19, 0.77, 0)),  # 6
    Part.LineSegment(Vector(-9.19, 0.77, 0), Vector(-10, 0.77, 0)),  # 7
    Part.LineSegment(Vector(-10, 0.77, 0), Vector(-10, 2.4, 0)),  # 8
    Part.LineSegment(Vector(-10, 2.4, 0), Vector(-8.92, 2.4, 0)),  # 9
    Part.LineSegment(Vector(-8.92, 2.4, 0), Vector(-8.92, 2.53, 0)),  # 10
    Part.ArcOfCircle(Part.Circle(Vector(-9.67, 2.53, 0), Vector(0, 0, 1), 0.75), math.radians(0), math.radians(90)),  # 11
    Part.ArcOfCircle(Part.Circle(Vector(-9.67, 3.92, 0), Vector(0, 0, 1), 0.64), math.radians(90), math.radians(270)),  # 12
    Part.LineSegment(Vector(-9.67, 4.56, 0), Vector(-6.96, 4.56, 0)),  # 13
], False)
sketch8.addConstraint([
    Sketcher.Constraint("Coincident", 0, 2, 1, 1),
    Sketcher.Constraint("Tangent", 1, 2, 2, 1),
    Sketcher.Constraint("Tangent", 2, 2, 3, 1),
    Sketcher.Constraint("Tangent", 3, 2, 4, 1),
    Sketcher.Constraint("Tangent", 4, 2, 5, 1),
    Sketcher.Constraint("Coincident", 5, 2, 6, 1),
    Sketcher.Constraint("Coincident", 6, 2, 7, 1),
    Sketcher.Constraint("Coincident", 7, 2, 8, 1),
    Sketcher.Constraint("Coincident", 8, 2, 9, 1),
    Sketcher.Constraint("Coincident", 9, 2, 10, 1),
    Sketcher.Constraint("Tangent", 10, 2, 11, 1),
    Sketcher.Constraint("Tangent", 11, 2, 12, 2),
    Sketcher.Constraint("Tangent", 12, 1, 13, 1),
    Sketcher.Constraint("Coincident", 13, 2, 0, 1),
    Sketcher.Constraint("Vertical", 0),
    Sketcher.Constraint("Horizontal", 1),
    Sketcher.Constraint("Vertical", 3),
    Sketcher.Constraint("Horizontal", 5),
    Sketcher.Constraint("Horizontal", 7),
    Sketcher.Constraint("Vertical", 8),
    Sketcher.Constraint("Horizontal", 9),
    Sketcher.Constraint("Vertical", 10),
    Sketcher.Constraint("Horizontal", 13),
    Sketcher.Constraint("Equal", 2, 4),
    Sketcher.Constraint("Vertical", 11, 3, 12, 3),
    Sketcher.Constraint("Radius", 2, 1.0),
    Sketcher.Constraint("Radius", 11, 0.75),
    Sketcher.Constraint("DistanceY", 0, 1, 0, 2, 1.6),
    Sketcher.Constraint("DistanceX", 7, 2, -1, 1, 10.0),
    Sketcher.Constraint("DistanceY", 8, 1, 8, 2, 1.63),
    Sketcher.Constraint("DistanceY", -1, 1, 8, 2, 2.4),
    Sketcher.Constraint("Radius", 12, 0.641199),
    Sketcher.Constraint("DistanceY", -1, 1, 2, 3, 5.16),
    Sketcher.Constraint("DistanceX", 0, 2, -1, 1, 6.96),
    Sketcher.Constraint("DistanceX", 1, 2, 1, 1, 3.517989),
    Sketcher.Constraint("DistanceX", 5, 1, 5, 2, 0.399709),
    Sketcher.Constraint("DistanceX", 7, 2, 7, 1, 0.806511),
    Sketcher.Constraint("DistanceX", 9, 1, 9, 2, 1.078467),
    Sketcher.Constraint("DistanceY", 3, 2, 3, 1, 4.333227),
])
sketch8.setExpression("Constraints[25]", "Params.sketch8_radius")
sketch8.setExpression("Constraints[26]", "Params.sketch8_radius2")
sketch8.setExpression("Constraints[27]", "Params.sketch8_height")
sketch8.setExpression("Constraints[29]", "Params.sketch8_height2")
pad6 = body3.newObject("PartDesign::Pad", "Pad005")
pad6.Profile = sketch8
pad6.setExpression("Length", "Params.pad6_length")
pad6.Reversed = True
body4 = doc.addObject("PartDesign::Body", "Body003")

# Sketch on XY plane
sketch9 = body4.newObject("Sketcher::SketchObject", "Sketch008")
sketch9.AttachmentSupport = (doc.getObject("XY_Plane003"), [""])
sketch9.MapMode = "FlatFace"
sketch9.AttachmentOffset = App.Placement(Vector(0, 0, -23.25), App.Rotation())
sketch9.addGeometry([
    Part.LineSegment(Vector(-6.21, 6.16, 0), Vector(-10.48, 6.16, 0)),  # 0
    Part.ArcOfCircle(Part.Circle(Vector(-10.48, 5.16, 0), Vector(0, 0, 1), 1), math.radians(90), math.radians(180)),  # 1
    Part.LineSegment(Vector(-11.48, 5.16, 0), Vector(-11.48, 0.83, 0)),  # 2
    Part.ArcOfCircle(Part.Circle(Vector(-10.48, 0.83, 0), Vector(0, 0, 1), 1), math.radians(180), math.radians(270)),  # 3
    Part.LineSegment(Vector(-10.48, -0.17, 0), Vector(-10.08, -0.17, 0)),  # 4
    Part.LineSegment(Vector(-10.08, -0.17, 0), Vector(-9.19, 0.77, 0)),  # 5
    Part.LineSegment(Vector(-9.19, 0.77, 0), Vector(-10, 0.77, 0)),  # 6
    Part.LineSegment(Vector(-10, 0.77, 0), Vector(-10, 2.4, 0)),  # 7
    Part.LineSegment(Vector(-10, 2.4, 0), Vector(-8.92, 2.4, 0)),  # 8
    Part.LineSegment(Vector(-8.92, 2.4, 0), Vector(-8.92, 2.53, 0)),  # 9
    Part.ArcOfCircle(Part.Circle(Vector(-9.67, 2.53, 0), Vector(0, 0, 1), 0.75), math.radians(0), math.radians(90)),  # 10
    Part.ArcOfCircle(Part.Circle(Vector(-9.67, 3.92, 0), Vector(0, 0, 1), 0.64), math.radians(90), math.radians(270)),  # 11
    Part.LineSegment(Vector(-9.67, 4.56, 0), Vector(-6.21, 4.56, 0)),  # 12
    Part.LineSegment(Vector(-6.21, 4.56, 0), Vector(-6.21, 6.16, 0)),  # 13
], False)
sketch9.addConstraint([
    Sketcher.Constraint("Tangent", 0, 2, 1, 1),
    Sketcher.Constraint("Tangent", 1, 2, 2, 1),
    Sketcher.Constraint("Tangent", 2, 2, 3, 1),
    Sketcher.Constraint("Tangent", 3, 2, 4, 1),
    Sketcher.Constraint("Coincident", 4, 2, 5, 1),
    Sketcher.Constraint("Coincident", 5, 2, 6, 1),
    Sketcher.Constraint("Coincident", 6, 2, 7, 1),
    Sketcher.Constraint("Coincident", 7, 2, 8, 1),
    Sketcher.Constraint("Coincident", 8, 2, 9, 1),
    Sketcher.Constraint("Tangent", 9, 2, 10, 1),
    Sketcher.Constraint("Tangent", 10, 2, 11, 2),
    Sketcher.Constraint("Tangent", 11, 1, 12, 1),
    Sketcher.Constraint("Coincident", 12, 2, 13, 1),
    Sketcher.Constraint("Coincident", 13, 2, 0, 1),
    Sketcher.Constraint("Horizontal", 0),
    Sketcher.Constraint("Vertical", 2),
    Sketcher.Constraint("Horizontal", 4),
    Sketcher.Constraint("Horizontal", 6),
    Sketcher.Constraint("Vertical", 7),
    Sketcher.Constraint("Horizontal", 8),
    Sketcher.Constraint("Vertical", 9),
    Sketcher.Constraint("Horizontal", 12),
    Sketcher.Constraint("Vertical", 13),
    Sketcher.Constraint("Equal", 1, 3),
    Sketcher.Constraint("Vertical", 10, 3, 11, 3),
    Sketcher.Constraint("Radius", 1, 1.0),
    Sketcher.Constraint("Radius", 10, 0.75),
    Sketcher.Constraint("DistanceY", 13, 1, 13, 2, 1.6),
    Sketcher.Constraint("DistanceX", 6, 2, -1, 1, 10.0),
    Sketcher.Constraint("DistanceY", 7, 1, 7, 2, 1.63),
    Sketcher.Constraint("DistanceY", -1, 1, 7, 2, 2.4),
    Sketcher.Constraint("Radius", 11, 0.641199),
    Sketcher.Constraint("DistanceY", -1, 1, 1, 3, 5.16),
    Sketcher.Constraint("DistanceX", 12, 2, -1, 1, 6.21),
    Sketcher.Constraint("DistanceX", 0, 2, 0, 1, 4.267989),
    Sketcher.Constraint("DistanceX", 4, 1, 4, 2, 0.399709),
    Sketcher.Constraint("DistanceX", 6, 2, 6, 1, 0.806511),
    Sketcher.Constraint("DistanceX", 8, 1, 8, 2, 1.078467),
    Sketcher.Constraint("DistanceY", 2, 2, 2, 1, 4.333227),
])
sketch9.setExpression("Constraints[25]", "Params.sketch9_radius")
sketch9.setExpression("Constraints[26]", "Params.sketch9_radius2")
sketch9.setExpression("Constraints[27]", "Params.sketch9_height")
sketch9.setExpression("Constraints[29]", "Params.sketch9_height2")
pad7 = body4.newObject("PartDesign::Pad", "Pad006")
pad7.Profile = sketch9
pad7.setExpression("Length", "Params.pad7_length")

doc.recompute()
